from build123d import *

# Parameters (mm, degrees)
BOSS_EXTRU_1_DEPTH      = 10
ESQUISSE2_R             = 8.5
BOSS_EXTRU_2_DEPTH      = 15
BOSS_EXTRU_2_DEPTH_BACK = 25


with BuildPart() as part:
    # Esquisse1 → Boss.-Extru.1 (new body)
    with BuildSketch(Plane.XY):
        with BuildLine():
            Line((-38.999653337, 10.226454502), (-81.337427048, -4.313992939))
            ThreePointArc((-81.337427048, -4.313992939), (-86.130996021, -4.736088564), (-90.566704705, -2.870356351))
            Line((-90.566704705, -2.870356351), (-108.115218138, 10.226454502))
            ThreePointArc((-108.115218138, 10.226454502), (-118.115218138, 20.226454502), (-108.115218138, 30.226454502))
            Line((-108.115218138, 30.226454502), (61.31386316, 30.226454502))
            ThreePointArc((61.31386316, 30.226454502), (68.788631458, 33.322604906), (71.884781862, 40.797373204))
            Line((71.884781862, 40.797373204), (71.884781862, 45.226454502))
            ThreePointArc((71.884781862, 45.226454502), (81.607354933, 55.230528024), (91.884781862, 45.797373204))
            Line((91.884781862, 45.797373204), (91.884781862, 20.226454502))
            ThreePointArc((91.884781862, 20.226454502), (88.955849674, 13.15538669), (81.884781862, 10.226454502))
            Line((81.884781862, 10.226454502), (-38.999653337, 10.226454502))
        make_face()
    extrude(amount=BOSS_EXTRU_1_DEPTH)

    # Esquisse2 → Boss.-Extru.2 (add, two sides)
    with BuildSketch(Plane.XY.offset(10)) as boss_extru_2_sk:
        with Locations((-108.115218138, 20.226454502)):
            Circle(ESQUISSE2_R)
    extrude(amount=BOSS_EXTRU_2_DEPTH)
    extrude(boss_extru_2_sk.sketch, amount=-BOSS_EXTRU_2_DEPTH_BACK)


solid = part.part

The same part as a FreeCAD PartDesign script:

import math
import FreeCAD as App
import Part
import Sketcher
from FreeCAD import Vector

doc = App.newDocument("Part")
body = doc.addObject("PartDesign::Body", "Body")

# Sketch on XY plane
sketch1 = doc.addObject("Sketcher::SketchObject", "Sketch")
body.addObject(sketch1)
sketch1.AttachmentSupport = (doc.XY_Plane, [""])
sketch1.MapMode = "FlatFace"
sketch1.addGeometry(Part.LineSegment(Vector(-81.337427, -4.313993, 0), Vector(-38.999653, 10.226455, 0)), False)
sketch1.addGeometry(Part.LineSegment(Vector(-38.999653, 10.226455, 0), Vector(81.884782, 10.226455, 0)), False)
sketch1.addGeometry(Part.ArcOfCircle(Part.Circle(Vector(81.884782, 20.226455, 0), Vector(0, 0, 1), 10), math.radians(-90), math.radians(0)), False)
sketch1.addGeometry(Part.LineSegment(Vector(91.884782, 20.226455, 0), Vector(91.884782, 45.797373, 0)), False)
sketch1.addGeometry(Part.ArcOfCircle(Part.Circle(Vector(81.892931, 45.226455, 0), Vector(0, 0, 1), 10.008149), math.radians(3.270235), math.radians(180)), False)
sketch1.addGeometry(Part.LineSegment(Vector(71.884782, 45.226455, 0), Vector(71.884782, 40.797373, 0)), False)
sketch1.addGeometry(Part.ArcOfCircle(Part.Circle(Vector(61.313863, 40.797373, 0), Vector(0, 0, 1), 10.570919), math.radians(-90), math.radians(0)), False)
sketch1.addGeometry(Part.LineSegment(Vector(61.313863, 30.226455, 0), Vector(-108.115218, 30.226455, 0)), False)
sketch1.addGeometry(Part.ArcOfCircle(Part.Circle(Vector(-108.115218, 20.226455, 0), Vector(0, 0, 1), 10), math.radians(90), math.radians(270)), False)
sketch1.addGeometry(Part.LineSegment(Vector(-108.115218, 10.226455, 0), Vector(-90.566705, -2.870356, 0)), False)
sketch1.addGeometry(Part.ArcOfCircle(Part.Circle(Vector(-84.585595, 5.143777, 0), Vector(0, 0, 1), 10), math.radians(-126.734725), math.radians(-71.045524)), False)
sketch1.addConstraint(Sketcher.Constraint("Coincident", 0, 2, 1, 1))
sketch1.addConstraint(Sketcher.Constraint("Coincident", 1, 2, 2, 1))
sketch1.addConstraint(Sketcher.Constraint("Coincident", 2, 2, 3, 1))
sketch1.addConstraint(Sketcher.Constraint("Coincident", 3, 2, 4, 1))
sketch1.addConstraint(Sketcher.Constraint("Coincident", 4, 2, 5, 1))
sketch1.addConstraint(Sketcher.Constraint("Coincident", 5, 2, 6, 2))
sketch1.addConstraint(Sketcher.Constraint("Coincident", 6, 1, 7, 1))
sketch1.addConstraint(Sketcher.Constraint("Coincident", 7, 2, 8, 1))
sketch1.addConstraint(Sketcher.Constraint("Coincident", 8, 2, 9, 1))
sketch1.addConstraint(Sketcher.Constraint("Coincident", 9, 2, 10, 1))
sketch1.addConstraint(Sketcher.Constraint("Coincident", 10, 2, 0, 1))
sketch1.addConstraint(Sketcher.Constraint("Horizontal", 1))
sketch1.addConstraint(Sketcher.Constraint("Vertical", 3))
sketch1.addConstraint(Sketcher.Constraint("Vertical", 5))
sketch1.addConstraint(Sketcher.Constraint("Horizontal", 7))
sketch1.addConstraint(Sketcher.Constraint("Radius", 2, 10.0))
sketch1.addConstraint(Sketcher.Constraint("Radius", 8, 10.0))
sketch1.addConstraint(Sketcher.Constraint("Radius", 10, 10.0))
sketch1.addConstraint(Sketcher.Constraint("DistanceY", 2, 3, 4, 3, 25.0))
sketch1.addConstraint(Sketcher.Constraint("DistanceX", 8, 3, 2, 3, 190.0))
sketch1.addConstraint(Sketcher.Constraint("DistanceY", 8, 3, 4, 3, 25.0))
sketch1.addConstraint(Sketcher.Constraint("DistanceX", 1, 2, 2, 2, 10.0))
sketch1.addConstraint(Sketcher.Constraint("DistanceY", 1, 2, 2, 2, 10.0))
sketch1.addConstraint(Sketcher.Constraint("DistanceY", 6, 3, 3, 2, 5.0))
sketch1.addConstraint(Sketcher.Constraint("DistanceX", 4, 2, 3, 2, 20.0))
sketch1.addConstraint(Sketcher.Constraint("DistanceY", 2, 3, 4, 2, 25.0))
sketch1.addConstraint(Sketcher.Constraint("DistanceY", 5, 2, 3, 2, 5.0))
sketch1.addConstraint(Sketcher.Constraint("Radius", 4, 10.008149))
sketch1.addConstraint(Sketcher.Constraint("DistanceX", 7, 2, 7, 1, 169.429081))
sketch1.addConstraint(Sketcher.Constraint("Distance", 9, 21.896958))
sketch1.addConstraint(Sketcher.Constraint("DistanceX", 1, 1, 1, 2, 120.884435))
sketch1.addConstraint(Sketcher.Constraint("DistanceX", -1, 1, 2, 3, 81.884782))
sketch1.addConstraint(Sketcher.Constraint("DistanceX", 7, 2, -1, 1, 108.115218))
sketch1.addConstraint(Sketcher.Constraint("DistanceX", 8, 2, -1, 1, 108.115218))
sketch1.addConstraint(Sketcher.Constraint("DistanceX", 10, 3, 6, 3, 145.899458))
sketch1.addConstraint(Sketcher.Constraint("DistanceX", 9, 2, 10, 3, 5.98111))
sketch1.addConstraint(Sketcher.Constraint("DistanceY", 10, 2, 10, 3, 9.45777))
sketch1.addConstraint(Sketcher.Constraint("DistanceY", -1, 1, 2, 3, 20.226455))
pad1 = doc.addObject("PartDesign::Pad", "Pad")
body.addObject(pad1)
pad1.Profile = sketch1
pad1.Length = 10

# Sketch on XY plane
sketch2 = doc.addObject("Sketcher::SketchObject", "Sketch001")
body.addObject(sketch2)
sketch2.AttachmentSupport = (doc.XY_Plane, [""])
sketch2.MapMode = "FlatFace"
sketch2.AttachmentOffset = App.Placement(Vector(0, 0, 10), App.Rotation())
sketch2.addGeometry(Part.Circle(Vector(-108, 20, 0), Vector(0, 0, 1), 8), False)
sketch2.addConstraint(Sketcher.Constraint("Diameter", 0, 17.0))
sketch2.addConstraint(Sketcher.Constraint("DistanceX", 0, 3, -1, 1, 108.115218))
sketch2.addConstraint(Sketcher.Constraint("DistanceY", -1, 1, 0, 3, 20.226455))
pad2 = doc.addObject("PartDesign::Pad", "Pad001")
body.addObject(pad2)
pad2.Profile = sketch2
pad2.Type = "TwoLengths"
pad2.Length = 15
pad2.Length2 = 25

doc.recompute()
